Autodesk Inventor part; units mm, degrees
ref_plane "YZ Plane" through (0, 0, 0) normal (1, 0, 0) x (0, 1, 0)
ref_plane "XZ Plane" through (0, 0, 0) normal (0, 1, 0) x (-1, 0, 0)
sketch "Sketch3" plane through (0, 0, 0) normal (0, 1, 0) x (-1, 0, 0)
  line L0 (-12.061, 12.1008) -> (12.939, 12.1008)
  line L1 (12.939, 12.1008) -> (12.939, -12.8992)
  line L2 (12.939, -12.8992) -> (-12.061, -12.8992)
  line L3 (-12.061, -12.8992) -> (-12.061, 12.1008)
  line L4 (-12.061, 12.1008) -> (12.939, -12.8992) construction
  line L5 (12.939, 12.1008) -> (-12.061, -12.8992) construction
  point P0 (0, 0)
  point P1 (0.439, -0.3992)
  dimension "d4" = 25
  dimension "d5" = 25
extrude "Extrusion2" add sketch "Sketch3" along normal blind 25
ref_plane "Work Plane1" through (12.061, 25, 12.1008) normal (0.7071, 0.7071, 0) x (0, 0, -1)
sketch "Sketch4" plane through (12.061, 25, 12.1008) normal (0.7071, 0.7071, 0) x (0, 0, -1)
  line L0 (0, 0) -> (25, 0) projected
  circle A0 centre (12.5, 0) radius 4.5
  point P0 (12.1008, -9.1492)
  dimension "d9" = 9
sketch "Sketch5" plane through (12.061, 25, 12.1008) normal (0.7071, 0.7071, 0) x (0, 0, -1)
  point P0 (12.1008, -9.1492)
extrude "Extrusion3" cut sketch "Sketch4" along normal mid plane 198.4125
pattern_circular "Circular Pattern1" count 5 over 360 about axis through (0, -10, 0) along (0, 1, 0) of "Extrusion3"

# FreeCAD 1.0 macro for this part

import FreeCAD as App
import Part
import Sketcher

V = App.Vector
Q = App.Units.Quantity


def add_polygon(sketch, points):
    """Adds a closed chain of lines whose ends are joined by coincident constraints."""
    first, n = sketch.GeometryCount, len(points)
    for a, b in zip(points, points[1:] + points[:1]):
        sketch.addGeometry(Part.LineSegment(App.Vector(*a, 0), App.Vector(*b, 0)), False)
    for i in range(n):
        sketch.addConstraint(Sketcher.Constraint("Coincident", first + i, 2, first + (i + 1) % n, 1))

doc = App.newDocument("Part")
body = doc.addObject("PartDesign::Body", "Body")

sketch1 = doc.addObject("Sketcher::SketchObject", "Sketch")
body.addObject(sketch1)
sketch1.AttachmentSupport = (doc.XZ_Plane, [""])
sketch1.MapMode = "FlatFace"
add_polygon(sketch1, [(-13, 12), (12, 12), (12, -13), (-13, -13)])
sketch1.addConstraint([
    Sketcher.Constraint("Horizontal", 0),
    Sketcher.Constraint("Vertical", 1),
    Sketcher.Constraint("Horizontal", 2),
    Sketcher.Constraint("Vertical", 3),
    Sketcher.Constraint("Equal", 2, 1),
    Sketcher.Constraint("DistanceX", 0, 1, 0, 2, Q("25 mm")),
    Sketcher.Constraint("DistanceX", -1, 1, 0, 2, Q("12.061 mm")),
    Sketcher.Constraint("DistanceY", -1, 1, 0, 2, Q("12.1008 mm")),
])
pad1 = doc.addObject("PartDesign::Pad", "Pad")
body.addObject(pad1)
pad1.Profile = sketch1
pad1.Length = 25
pad1.Reversed = True

sketch2 = doc.addObject("Sketcher::SketchObject", "Sketch001")
body.addObject(sketch2)
sketch2.Placement = App.Placement(V(12.061, 25, 12.1008), App.Rotation(V(0, 0, -1), V(-0.707106781, 0.707106781, 0), V(0.707106781, 0.707106781, 0), "ZXY"))
sketch2.addGeometry(Part.Circle(V(12.5, 0, 0), V(0, 0, 1), 4.5), False)
sketch2.addConstraint([
    Sketcher.Constraint("PointOnObject", 0, 3, -1),
    Sketcher.Constraint("Diameter", 0, Q("9 mm")),
    Sketcher.Constraint("DistanceX", -1, 1, 0, 3, Q("12.5 mm")),
])
pocket1 = doc.addObject("PartDesign::Pocket", "Pocket")
body.addObject(pocket1)
pocket1.Profile = sketch2
pocket1.Length = 198.4125
pocket1.Midplane = True
doc.recompute()

polarpattern = doc.addObject("PartDesign::PolarPattern", "PolarPattern")
body.addObject(polarpattern)
polarpattern.Originals = [pocket1]
polarpattern.Axis = (doc.Y_Axis, [""])
polarpattern.Angle = 360
polarpattern.Occurrences = 5
body.Tip = polarpattern

doc.recompute()
